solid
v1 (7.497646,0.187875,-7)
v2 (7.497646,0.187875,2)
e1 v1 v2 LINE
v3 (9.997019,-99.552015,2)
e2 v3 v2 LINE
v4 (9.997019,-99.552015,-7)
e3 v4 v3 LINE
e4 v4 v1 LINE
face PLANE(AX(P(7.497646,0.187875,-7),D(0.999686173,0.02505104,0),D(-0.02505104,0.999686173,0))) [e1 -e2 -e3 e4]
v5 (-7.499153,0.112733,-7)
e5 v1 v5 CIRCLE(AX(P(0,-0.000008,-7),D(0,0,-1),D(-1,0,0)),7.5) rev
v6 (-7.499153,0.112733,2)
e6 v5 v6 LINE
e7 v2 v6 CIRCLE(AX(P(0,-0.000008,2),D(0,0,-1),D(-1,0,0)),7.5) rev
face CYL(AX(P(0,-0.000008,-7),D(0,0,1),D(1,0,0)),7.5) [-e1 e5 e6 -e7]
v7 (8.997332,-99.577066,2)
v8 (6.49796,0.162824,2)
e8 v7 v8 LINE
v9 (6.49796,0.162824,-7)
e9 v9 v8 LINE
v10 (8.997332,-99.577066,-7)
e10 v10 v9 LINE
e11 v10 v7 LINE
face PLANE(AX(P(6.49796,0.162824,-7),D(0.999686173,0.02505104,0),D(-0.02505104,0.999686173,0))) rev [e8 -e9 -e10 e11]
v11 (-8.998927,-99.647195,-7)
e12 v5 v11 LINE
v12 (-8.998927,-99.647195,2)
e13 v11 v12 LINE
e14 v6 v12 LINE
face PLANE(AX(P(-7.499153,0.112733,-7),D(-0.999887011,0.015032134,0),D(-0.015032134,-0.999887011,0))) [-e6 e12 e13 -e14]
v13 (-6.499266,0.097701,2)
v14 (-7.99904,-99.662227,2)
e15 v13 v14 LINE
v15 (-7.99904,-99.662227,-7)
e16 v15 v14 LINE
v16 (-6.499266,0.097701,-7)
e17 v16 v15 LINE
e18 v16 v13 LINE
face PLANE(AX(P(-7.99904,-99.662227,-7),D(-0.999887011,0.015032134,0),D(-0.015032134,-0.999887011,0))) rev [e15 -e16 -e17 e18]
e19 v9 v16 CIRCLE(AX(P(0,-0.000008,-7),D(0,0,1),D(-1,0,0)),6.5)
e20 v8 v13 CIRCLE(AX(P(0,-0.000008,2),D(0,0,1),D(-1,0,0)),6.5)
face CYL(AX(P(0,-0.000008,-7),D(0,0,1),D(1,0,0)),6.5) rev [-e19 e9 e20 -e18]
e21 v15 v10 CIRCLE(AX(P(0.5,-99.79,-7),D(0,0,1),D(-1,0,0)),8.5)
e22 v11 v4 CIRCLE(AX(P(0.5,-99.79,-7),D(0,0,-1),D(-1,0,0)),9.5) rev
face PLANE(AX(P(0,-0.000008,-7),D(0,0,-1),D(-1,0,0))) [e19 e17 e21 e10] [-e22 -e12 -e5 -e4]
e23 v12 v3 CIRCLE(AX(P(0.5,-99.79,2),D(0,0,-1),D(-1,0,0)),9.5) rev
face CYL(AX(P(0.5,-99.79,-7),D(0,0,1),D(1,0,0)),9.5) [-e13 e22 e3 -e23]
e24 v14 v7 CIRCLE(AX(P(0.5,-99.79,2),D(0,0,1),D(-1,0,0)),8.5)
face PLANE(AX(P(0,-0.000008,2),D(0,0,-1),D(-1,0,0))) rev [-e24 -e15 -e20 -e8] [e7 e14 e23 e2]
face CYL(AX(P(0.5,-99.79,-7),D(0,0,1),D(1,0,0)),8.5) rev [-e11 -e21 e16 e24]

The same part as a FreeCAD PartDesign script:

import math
import FreeCAD as App
import Part
import Sketcher
from FreeCAD import Vector

doc = App.newDocument("Part")
body = doc.addObject("PartDesign::Body", "Body")

sketch1 = doc.addObject("Sketcher::SketchObject", "Sketch")
body.addObject(sketch1)
sketch1.AttachmentSupport = (doc.XY_Plane, [""])
sketch1.MapMode = "FlatFace"
sketch1.AttachmentOffset = App.Placement(Vector(0, 0, 2), App.Rotation())
sketch1.addGeometry(Part.LineSegment(Vector(-7.499153, 0.112733, 0), Vector(-8.998927, -99.647195, 0)), False)
sketch1.addGeometry(Part.ArcOfCircle(Part.Circle(Vector(0.5, -99.79, 0), Vector(0, 0, 1), 9.5), math.radians(179.13869), math.radians(361.435469)), False)
sketch1.addGeometry(Part.LineSegment(Vector(9.997019, -99.552015, 0), Vector(7.497646, 0.187875, 0)), False)
sketch1.addGeometry(Part.ArcOfCircle(Part.Circle(Vector(0, -0.000008, 0), Vector(0, 0, 1), 7.5), math.radians(1.435469), math.radians(179.13869)), False)
sketch1.addGeometry(Part.LineSegment(Vector(-7.99904, -99.662227, 0), Vector(-6.499266, 0.097701, 0)), False)
sketch1.addGeometry(Part.ArcOfCircle(Part.Circle(Vector(0, -0.000008, 0), Vector(0, 0, 1), 6.5), math.radians(1.435469), math.radians(179.13869)), False)
sketch1.addGeometry(Part.LineSegment(Vector(6.49796, 0.162824, 0), Vector(8.997332, -99.577066, 0)), False)
sketch1.addGeometry(Part.ArcOfCircle(Part.Circle(Vector(0.5, -99.79, 0), Vector(0, 0, 1), 8.5), math.radians(179.13869), math.radians(361.435469)), False)
sketch1.addConstraint(Sketcher.Constraint("Tangent", 0, 2, 1, 1))
sketch1.addConstraint(Sketcher.Constraint("Tangent", 1, 2, 2, 1))
sketch1.addConstraint(Sketcher.Constraint("Tangent", 2, 2, 3, 1))
sketch1.addConstraint(Sketcher.Constraint("Tangent", 3, 2, 0, 1))
sketch1.addConstraint(Sketcher.Constraint("Tangent", 4, 2, 5, 2))
sketch1.addConstraint(Sketcher.Constraint("Tangent", 5, 1, 6, 1))
sketch1.addConstraint(Sketcher.Constraint("Tangent", 6, 2, 7, 2))
sketch1.addConstraint(Sketcher.Constraint("Tangent", 7, 1, 4, 1))
sketch1.addConstraint(Sketcher.Constraint("Coincident", 3, 3, -1, 1))
sketch1.addConstraint(Sketcher.Constraint("Coincident", 5, 3, -1, 1))
sketch1.addConstraint(Sketcher.Constraint("Coincident", 7, 3, 1, 3))
sketch1.addConstraint(Sketcher.Constraint("Parallel", 0, 4))
sketch1.addConstraint(Sketcher.Constraint("Radius", 1, 9.5))
sketch1.addConstraint(Sketcher.Constraint("Radius", 3, 7.5))
sketch1.addConstraint(Sketcher.Constraint("Radius", 5, 6.5))
sketch1.addConstraint(Sketcher.Constraint("DistanceX", -1, 1, 1, 3, 0.5))
sketch1.addConstraint(Sketcher.Constraint("DistanceY", 1, 3, -1, 1, 99.79))
pad1 = doc.addObject("PartDesign::Pad", "Pad")
body.addObject(pad1)
pad1.Profile = sketch1
pad1.Length = 9
pad1.Reversed = True

doc.recompute()
